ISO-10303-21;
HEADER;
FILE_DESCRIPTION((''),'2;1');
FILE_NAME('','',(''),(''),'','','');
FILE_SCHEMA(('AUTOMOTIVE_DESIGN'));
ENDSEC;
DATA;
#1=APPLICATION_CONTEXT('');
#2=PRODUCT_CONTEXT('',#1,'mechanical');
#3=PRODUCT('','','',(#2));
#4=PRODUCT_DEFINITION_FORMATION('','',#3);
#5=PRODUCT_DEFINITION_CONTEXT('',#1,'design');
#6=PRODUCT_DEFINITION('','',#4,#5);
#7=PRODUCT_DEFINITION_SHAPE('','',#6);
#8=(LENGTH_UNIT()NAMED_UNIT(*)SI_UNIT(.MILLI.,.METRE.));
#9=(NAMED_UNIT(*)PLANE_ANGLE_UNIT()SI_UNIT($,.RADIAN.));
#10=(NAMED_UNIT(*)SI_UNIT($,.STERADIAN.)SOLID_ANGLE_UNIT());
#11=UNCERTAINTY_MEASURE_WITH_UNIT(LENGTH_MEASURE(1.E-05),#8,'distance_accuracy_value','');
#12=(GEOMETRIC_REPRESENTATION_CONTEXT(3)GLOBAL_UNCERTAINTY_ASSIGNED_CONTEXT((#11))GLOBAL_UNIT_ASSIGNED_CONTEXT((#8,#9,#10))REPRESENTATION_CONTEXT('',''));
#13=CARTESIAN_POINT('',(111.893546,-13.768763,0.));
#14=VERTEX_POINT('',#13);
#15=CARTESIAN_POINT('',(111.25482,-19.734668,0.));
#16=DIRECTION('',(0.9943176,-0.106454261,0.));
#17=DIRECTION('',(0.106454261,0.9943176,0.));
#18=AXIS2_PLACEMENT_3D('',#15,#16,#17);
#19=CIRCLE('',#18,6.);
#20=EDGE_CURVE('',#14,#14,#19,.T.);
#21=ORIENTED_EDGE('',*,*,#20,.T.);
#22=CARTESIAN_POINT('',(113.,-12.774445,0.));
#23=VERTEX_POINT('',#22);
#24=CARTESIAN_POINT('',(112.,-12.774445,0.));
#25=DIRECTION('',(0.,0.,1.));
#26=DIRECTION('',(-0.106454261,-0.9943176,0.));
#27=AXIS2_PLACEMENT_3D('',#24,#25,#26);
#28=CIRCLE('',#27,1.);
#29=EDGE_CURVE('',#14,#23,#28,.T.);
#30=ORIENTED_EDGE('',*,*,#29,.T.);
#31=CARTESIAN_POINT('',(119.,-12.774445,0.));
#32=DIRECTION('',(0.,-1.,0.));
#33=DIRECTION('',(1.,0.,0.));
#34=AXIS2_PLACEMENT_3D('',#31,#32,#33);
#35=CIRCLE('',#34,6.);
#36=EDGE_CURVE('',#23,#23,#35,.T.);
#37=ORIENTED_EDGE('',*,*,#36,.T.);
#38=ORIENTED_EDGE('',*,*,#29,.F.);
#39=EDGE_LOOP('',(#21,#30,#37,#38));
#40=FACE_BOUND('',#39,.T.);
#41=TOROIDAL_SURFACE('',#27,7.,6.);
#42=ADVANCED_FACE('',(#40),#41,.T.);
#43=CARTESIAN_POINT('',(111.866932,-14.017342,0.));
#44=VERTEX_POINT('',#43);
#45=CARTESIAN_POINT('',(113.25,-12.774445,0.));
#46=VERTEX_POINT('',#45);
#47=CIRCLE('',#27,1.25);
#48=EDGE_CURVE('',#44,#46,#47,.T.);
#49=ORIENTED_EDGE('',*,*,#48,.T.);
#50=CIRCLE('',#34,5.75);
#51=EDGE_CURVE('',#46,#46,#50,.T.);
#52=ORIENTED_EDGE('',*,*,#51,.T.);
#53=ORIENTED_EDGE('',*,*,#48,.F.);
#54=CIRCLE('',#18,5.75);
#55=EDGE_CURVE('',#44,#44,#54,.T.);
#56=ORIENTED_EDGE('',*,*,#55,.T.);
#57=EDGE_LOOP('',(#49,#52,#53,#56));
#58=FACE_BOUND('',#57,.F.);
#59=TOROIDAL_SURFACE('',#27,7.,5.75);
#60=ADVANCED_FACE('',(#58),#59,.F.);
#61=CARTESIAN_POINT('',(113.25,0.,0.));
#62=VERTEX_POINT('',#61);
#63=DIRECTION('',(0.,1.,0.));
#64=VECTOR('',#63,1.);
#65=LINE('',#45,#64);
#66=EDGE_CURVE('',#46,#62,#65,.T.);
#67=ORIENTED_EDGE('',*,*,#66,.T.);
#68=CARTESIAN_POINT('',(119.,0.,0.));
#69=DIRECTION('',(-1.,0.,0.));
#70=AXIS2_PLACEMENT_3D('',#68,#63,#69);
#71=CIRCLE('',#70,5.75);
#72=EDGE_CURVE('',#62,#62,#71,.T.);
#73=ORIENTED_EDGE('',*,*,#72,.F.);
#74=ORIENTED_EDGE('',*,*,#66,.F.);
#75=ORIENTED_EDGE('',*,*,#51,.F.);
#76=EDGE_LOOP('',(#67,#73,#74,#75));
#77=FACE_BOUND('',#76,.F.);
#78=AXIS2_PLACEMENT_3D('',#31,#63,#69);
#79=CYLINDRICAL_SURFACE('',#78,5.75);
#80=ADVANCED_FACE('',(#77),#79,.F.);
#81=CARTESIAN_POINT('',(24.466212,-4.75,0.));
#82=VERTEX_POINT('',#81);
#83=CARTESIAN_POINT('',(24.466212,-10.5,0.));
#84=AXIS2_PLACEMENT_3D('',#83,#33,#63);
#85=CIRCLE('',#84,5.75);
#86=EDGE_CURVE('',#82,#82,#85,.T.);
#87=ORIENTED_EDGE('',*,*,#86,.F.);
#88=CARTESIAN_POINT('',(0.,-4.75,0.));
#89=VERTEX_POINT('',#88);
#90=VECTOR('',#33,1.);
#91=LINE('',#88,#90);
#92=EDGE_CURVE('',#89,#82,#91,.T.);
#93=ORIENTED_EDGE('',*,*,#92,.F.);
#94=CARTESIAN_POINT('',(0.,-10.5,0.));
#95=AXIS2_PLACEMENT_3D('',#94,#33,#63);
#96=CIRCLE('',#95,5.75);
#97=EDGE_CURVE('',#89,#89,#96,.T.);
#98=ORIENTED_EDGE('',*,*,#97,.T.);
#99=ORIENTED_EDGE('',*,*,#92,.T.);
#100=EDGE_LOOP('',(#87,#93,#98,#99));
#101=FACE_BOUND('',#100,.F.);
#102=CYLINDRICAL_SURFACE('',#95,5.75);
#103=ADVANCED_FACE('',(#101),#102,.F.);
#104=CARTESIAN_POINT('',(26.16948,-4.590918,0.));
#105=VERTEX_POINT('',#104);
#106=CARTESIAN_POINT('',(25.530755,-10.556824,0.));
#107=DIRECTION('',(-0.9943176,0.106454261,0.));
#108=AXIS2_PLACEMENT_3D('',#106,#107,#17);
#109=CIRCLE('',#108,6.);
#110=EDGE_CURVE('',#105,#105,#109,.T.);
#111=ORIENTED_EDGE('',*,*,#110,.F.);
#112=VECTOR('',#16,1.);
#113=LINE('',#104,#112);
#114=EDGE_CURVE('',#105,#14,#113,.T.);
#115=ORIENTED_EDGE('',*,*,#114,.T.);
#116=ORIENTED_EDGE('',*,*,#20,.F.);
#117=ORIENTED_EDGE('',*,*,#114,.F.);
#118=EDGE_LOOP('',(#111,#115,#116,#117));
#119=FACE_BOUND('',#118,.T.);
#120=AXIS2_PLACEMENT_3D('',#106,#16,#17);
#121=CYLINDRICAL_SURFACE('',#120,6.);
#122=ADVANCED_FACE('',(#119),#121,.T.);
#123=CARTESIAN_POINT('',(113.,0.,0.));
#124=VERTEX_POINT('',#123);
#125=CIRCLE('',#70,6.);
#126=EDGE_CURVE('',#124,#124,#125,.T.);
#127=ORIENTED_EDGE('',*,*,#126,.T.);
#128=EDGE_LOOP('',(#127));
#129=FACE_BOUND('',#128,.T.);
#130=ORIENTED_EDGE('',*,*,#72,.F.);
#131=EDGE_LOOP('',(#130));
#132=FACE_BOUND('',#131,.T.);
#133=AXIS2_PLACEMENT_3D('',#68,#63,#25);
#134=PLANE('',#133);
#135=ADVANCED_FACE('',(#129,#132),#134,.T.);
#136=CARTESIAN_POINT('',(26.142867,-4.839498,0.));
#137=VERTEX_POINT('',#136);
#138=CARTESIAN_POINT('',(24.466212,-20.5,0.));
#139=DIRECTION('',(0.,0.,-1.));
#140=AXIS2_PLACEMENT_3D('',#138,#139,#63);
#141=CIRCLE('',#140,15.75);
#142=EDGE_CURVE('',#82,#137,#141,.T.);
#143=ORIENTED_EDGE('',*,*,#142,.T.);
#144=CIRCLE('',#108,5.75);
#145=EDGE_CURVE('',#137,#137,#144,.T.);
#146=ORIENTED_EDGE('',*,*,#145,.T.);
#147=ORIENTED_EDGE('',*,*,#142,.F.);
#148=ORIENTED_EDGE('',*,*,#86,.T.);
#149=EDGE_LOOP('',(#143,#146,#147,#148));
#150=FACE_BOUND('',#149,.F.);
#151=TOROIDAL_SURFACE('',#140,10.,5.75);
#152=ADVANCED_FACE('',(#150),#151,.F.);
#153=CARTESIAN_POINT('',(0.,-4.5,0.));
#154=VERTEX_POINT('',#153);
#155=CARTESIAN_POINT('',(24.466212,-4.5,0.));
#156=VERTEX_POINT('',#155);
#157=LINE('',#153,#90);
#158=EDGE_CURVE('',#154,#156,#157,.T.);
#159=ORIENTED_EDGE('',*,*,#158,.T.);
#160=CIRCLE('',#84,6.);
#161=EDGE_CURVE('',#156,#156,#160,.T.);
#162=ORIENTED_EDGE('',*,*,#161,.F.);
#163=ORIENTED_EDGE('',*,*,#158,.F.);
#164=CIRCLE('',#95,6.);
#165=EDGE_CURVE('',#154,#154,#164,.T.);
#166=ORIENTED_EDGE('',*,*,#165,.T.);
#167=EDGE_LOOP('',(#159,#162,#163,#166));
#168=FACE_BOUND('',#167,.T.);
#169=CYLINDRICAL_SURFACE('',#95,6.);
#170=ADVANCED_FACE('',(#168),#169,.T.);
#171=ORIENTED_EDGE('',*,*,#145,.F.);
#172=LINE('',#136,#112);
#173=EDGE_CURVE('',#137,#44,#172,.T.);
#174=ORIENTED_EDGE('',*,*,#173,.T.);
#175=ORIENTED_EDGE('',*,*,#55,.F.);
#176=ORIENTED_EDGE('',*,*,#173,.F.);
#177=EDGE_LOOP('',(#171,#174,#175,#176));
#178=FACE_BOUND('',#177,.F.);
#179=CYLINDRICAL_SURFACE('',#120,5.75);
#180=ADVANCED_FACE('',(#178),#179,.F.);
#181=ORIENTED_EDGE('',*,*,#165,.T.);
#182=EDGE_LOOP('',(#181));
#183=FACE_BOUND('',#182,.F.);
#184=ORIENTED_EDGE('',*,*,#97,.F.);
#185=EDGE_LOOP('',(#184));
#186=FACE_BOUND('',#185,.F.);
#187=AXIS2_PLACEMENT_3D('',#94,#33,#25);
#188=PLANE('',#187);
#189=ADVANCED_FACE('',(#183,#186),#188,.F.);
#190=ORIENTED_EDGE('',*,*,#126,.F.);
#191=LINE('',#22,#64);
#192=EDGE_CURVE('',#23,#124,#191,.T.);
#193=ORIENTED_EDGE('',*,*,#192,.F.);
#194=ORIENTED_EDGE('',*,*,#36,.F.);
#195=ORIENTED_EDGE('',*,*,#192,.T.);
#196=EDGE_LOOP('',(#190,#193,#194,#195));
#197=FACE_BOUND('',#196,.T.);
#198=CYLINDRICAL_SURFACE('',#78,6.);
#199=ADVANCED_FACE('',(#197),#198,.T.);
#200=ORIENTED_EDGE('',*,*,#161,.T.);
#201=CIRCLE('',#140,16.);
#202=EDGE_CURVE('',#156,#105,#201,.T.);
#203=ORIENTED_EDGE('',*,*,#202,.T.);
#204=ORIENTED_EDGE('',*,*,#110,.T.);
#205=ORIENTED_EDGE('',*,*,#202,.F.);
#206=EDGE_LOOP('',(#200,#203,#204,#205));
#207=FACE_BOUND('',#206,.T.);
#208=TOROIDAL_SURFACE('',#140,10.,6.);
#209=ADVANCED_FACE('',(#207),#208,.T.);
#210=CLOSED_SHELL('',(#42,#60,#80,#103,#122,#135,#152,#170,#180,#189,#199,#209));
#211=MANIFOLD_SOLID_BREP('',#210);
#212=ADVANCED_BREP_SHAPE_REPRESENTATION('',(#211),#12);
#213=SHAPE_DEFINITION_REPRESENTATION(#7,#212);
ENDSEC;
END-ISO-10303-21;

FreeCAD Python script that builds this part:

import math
import FreeCAD as App
import Part
import Sketcher

V = App.Vector

doc = App.newDocument("Part")
body = doc.addObject("PartDesign::Body", "Body")

# Sketch on YZ plane
sketch1 = body.newObject("Sketcher::SketchObject", "Sketch")
sketch1.AttachmentSupport = (doc.getObject("YZ_Plane"), [""])
sketch1.MapMode = "FlatFace"
sketch1.addGeometry([
    Part.Circle(V(-10, 0, 0), V(0, 0, 1), 6),
    Part.Circle(V(-10, 0, 0), V(0, 0, 1), 6),
], False)
sketch1.addConstraint([
    Sketcher.Constraint("Coincident", 1, 3, 0, 3),
    Sketcher.Constraint("PointOnObject", 0, 3, -1),
    Sketcher.Constraint("Diameter", 0, 12.0),
    Sketcher.Constraint("Diameter", 1, 11.5),
    Sketcher.Constraint("DistanceX", 0, 3, -1, 1, 10.5),
])

# Sketch on XY plane
sketch2 = body.newObject("Sketcher::SketchObject", "Sketch001")
sketch2.AttachmentSupport = (doc.getObject("XY_Plane"), [""])
sketch2.MapMode = "FlatFace"
sketch2.addGeometry([
    Part.LineSegment(V(0, -4.5, 0), V(24.5, -4.5, 0)),  # 0
    Part.ArcOfCircle(Part.Circle(V(24.5, -20.5, 0), V(0, 0, 1), 16), math.radians(83.89), math.radians(90)),  # 1
    Part.LineSegment(V(26.2, -4.6, 0), V(111.9, -13.8, 0)),  # 2
    Part.ArcOfCircle(Part.Circle(V(112, -12.8, 0), V(0, 0, 1), 1), math.radians(-96), math.radians(0)),  # 3
    Part.LineSegment(V(113, -12.8, 0), V(113, 0, 0)),  # 4
], False)
sketch2.addConstraint([
    Sketcher.Constraint("Tangent", 0, 2, 1, 2),
    Sketcher.Constraint("Tangent", 1, 1, 2, 1),
    Sketcher.Constraint("Tangent", 2, 2, 3, 1),
    Sketcher.Constraint("Tangent", 3, 2, 4, 1),
    Sketcher.Constraint("Horizontal", 0),
    Sketcher.Constraint("Vertical", 4),
    Sketcher.Constraint("PointOnObject", 0, 1, -2),
    Sketcher.Constraint("PointOnObject", 4, 2, -1),
    Sketcher.Constraint("Radius", 1, 16.0),
    Sketcher.Constraint("Radius", 3, 1.0),
    Sketcher.Constraint("DistanceX", -1, 1, 3, 3, 112.0),
    Sketcher.Constraint("DistanceY", 1, 3, -1, 1, 20.5),
    Sketcher.Constraint("DistanceX", 0, 1, 0, 2, 24.466212),
    Sketcher.Constraint("DistanceY", 4, 1, 4, 2, 12.774445),
])
doc.recompute()

additivepipe = body.newObject("PartDesign::AdditivePipe", "AdditivePipe")
additivepipe.Profile = sketch1
additivepipe.Spine = (sketch2, ["Edge1", "Edge2", "Edge3", "Edge4", "Edge5"])

doc.recompute()
